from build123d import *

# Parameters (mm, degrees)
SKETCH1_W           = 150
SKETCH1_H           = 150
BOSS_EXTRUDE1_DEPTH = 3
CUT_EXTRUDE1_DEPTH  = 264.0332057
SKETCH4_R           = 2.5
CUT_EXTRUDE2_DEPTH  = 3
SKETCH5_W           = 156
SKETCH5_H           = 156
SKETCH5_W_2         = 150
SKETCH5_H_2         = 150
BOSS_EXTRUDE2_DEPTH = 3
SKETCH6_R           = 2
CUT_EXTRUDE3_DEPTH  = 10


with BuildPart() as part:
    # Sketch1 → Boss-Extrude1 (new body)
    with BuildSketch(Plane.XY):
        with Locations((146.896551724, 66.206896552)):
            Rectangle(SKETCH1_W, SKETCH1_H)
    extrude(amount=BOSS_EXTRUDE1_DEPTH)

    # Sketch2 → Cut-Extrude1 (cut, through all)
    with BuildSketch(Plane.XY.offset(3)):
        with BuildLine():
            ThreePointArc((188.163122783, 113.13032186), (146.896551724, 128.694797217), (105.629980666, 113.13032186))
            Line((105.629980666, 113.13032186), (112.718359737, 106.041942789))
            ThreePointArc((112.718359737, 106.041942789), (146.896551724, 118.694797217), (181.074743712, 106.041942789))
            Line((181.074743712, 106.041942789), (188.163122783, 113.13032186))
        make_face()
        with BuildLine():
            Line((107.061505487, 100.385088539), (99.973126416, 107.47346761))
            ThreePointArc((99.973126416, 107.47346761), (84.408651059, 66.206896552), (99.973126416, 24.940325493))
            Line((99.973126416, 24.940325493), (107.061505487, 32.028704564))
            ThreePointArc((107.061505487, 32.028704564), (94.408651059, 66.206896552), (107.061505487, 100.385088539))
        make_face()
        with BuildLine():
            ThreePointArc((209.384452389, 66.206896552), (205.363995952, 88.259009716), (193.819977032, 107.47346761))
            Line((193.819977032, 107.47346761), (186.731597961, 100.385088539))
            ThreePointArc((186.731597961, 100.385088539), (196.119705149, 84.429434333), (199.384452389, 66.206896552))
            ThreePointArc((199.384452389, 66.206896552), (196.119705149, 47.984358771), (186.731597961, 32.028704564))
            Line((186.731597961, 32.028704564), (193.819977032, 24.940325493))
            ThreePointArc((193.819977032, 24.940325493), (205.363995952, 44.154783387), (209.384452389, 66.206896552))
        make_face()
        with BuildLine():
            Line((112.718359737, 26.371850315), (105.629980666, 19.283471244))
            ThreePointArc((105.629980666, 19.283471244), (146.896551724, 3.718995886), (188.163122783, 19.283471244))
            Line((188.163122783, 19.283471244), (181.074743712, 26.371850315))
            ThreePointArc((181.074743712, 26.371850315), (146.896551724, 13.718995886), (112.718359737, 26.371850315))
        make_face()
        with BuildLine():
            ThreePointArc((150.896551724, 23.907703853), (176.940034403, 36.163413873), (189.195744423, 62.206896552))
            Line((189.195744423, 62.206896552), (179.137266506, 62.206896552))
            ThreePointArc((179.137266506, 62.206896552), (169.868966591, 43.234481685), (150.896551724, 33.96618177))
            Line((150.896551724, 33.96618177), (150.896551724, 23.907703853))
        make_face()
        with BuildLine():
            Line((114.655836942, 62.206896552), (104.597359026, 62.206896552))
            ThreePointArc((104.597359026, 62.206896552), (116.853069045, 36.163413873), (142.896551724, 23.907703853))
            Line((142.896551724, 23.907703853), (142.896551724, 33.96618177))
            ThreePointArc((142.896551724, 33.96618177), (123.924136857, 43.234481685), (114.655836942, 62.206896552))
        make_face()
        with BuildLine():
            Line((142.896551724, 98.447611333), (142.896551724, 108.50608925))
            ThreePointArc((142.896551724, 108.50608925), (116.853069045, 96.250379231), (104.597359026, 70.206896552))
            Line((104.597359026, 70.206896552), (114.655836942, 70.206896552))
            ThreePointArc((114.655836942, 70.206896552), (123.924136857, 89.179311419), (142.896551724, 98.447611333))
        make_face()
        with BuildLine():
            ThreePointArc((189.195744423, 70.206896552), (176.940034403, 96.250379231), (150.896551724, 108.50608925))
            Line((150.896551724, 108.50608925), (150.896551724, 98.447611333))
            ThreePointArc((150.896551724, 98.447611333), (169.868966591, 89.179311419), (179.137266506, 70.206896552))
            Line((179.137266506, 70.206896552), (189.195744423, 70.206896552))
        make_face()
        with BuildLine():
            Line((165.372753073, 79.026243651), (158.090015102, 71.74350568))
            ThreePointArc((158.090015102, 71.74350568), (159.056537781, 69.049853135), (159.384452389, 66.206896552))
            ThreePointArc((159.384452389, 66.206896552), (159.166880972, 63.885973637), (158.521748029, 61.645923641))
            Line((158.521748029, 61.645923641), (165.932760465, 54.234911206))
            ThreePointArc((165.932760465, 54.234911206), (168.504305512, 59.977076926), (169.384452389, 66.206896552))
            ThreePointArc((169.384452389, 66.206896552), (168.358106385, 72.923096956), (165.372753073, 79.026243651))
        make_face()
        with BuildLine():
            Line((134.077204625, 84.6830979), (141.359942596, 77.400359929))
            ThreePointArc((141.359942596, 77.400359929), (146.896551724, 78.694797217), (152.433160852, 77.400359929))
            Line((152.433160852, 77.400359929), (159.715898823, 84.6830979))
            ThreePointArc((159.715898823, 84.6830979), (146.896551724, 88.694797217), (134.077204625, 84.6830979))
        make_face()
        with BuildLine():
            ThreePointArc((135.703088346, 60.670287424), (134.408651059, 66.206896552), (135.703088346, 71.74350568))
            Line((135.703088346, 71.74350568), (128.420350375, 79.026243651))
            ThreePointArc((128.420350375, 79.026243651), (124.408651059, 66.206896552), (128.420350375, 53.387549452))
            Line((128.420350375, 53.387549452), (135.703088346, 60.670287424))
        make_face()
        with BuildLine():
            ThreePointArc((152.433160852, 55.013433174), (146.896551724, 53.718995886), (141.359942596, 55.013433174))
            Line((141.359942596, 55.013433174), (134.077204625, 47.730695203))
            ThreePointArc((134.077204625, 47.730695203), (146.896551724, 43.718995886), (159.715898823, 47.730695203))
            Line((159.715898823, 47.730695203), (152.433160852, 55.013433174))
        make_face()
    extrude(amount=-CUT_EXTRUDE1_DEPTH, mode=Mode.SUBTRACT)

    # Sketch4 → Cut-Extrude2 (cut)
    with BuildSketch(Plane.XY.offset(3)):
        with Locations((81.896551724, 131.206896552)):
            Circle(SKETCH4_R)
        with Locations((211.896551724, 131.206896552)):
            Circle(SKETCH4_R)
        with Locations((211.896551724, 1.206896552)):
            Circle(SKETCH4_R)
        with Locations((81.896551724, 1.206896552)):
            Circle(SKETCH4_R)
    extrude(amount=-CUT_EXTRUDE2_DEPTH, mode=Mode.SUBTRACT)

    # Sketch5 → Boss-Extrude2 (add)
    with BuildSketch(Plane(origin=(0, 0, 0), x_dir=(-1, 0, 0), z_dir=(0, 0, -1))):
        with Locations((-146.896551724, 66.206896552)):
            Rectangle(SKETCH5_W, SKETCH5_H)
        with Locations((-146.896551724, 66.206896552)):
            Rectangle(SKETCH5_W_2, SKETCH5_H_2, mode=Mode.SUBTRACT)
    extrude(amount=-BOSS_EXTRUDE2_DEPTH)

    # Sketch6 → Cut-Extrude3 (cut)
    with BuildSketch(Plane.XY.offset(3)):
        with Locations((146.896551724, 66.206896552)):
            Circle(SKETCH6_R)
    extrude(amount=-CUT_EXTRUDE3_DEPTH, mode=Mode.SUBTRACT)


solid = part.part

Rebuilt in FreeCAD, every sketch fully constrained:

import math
import FreeCAD as App
import Part
import Sketcher

V = App.Vector


def add_polygon(sketch, points):
    """Adds a closed chain of lines whose ends are joined by coincident constraints."""
    first, n = sketch.GeometryCount, len(points)
    for a, b in zip(points, points[1:] + points[:1]):
        sketch.addGeometry(Part.LineSegment(App.Vector(*a, 0), App.Vector(*b, 0)), False)
    for i in range(n):
        sketch.addConstraint(Sketcher.Constraint("Coincident", first + i, 2, first + (i + 1) % n, 1))

doc = App.newDocument("Part")
body = doc.addObject("PartDesign::Body", "Body")

# Sketch on XY plane
sketch1 = body.newObject("Sketcher::SketchObject", "Sketch")
sketch1.AttachmentSupport = (doc.getObject("XY_Plane"), [""])
sketch1.MapMode = "FlatFace"
add_polygon(sketch1, [(72, 141), (72, -9), (222, -9), (222, 141)])  # lines 0-3
sketch1.addConstraint([
    Sketcher.Constraint("Vertical", 0),
    Sketcher.Constraint("Horizontal", 1),
    Sketcher.Constraint("Vertical", 2),
    Sketcher.Constraint("Horizontal", 3),
    Sketcher.Constraint("Equal", 3, 0),
    Sketcher.Constraint("DistanceX", 1, 1, 1, 2, 150.0),
    Sketcher.Constraint("DistanceX", -1, 1, 0, 2, 71.896552),
    Sketcher.Constraint("DistanceY", 0, 2, -1, 1, 8.793103),
])
pad1 = body.newObject("PartDesign::Pad", "Pad")
pad1.Profile = sketch1
pad1.Length = 3

# Sketch on XY plane
sketch2 = body.newObject("Sketcher::SketchObject", "Sketch001")
sketch2.AttachmentSupport = (doc.getObject("XY_Plane"), [""])
sketch2.MapMode = "FlatFace"
sketch2.AttachmentOffset = App.Placement(V(0, 0, 3), App.Rotation())
sketch2.addGeometry([
    Part.ArcOfCircle(Part.Circle(V(146.896552, 66.206897, 0), V(0, 0, 1), 62.487901), math.radians(48.670149), math.radians(131.329851)),  # 0
    Part.LineSegment(V(105.629981, 113.130322, 0), V(112.71836, 106.041943, 0)),  # 1
    Part.ArcOfCircle(Part.Circle(V(146.896552, 66.206897, 0), V(0, 0, 1), 52.487901), math.radians(49.370637), math.radians(130.629363)),  # 2
    Part.LineSegment(V(181.074744, 106.041943, 0), V(188.163123, 113.130322, 0)),  # 3
    Part.LineSegment(V(107.061505, 100.385089, 0), V(99.973126, 107.473468, 0)),  # 4
    Part.ArcOfCircle(Part.Circle(V(146.896552, 66.206897, 0), V(0, 0, 1), 62.487901), math.radians(138.670149), math.radians(221.329851)),  # 5
    Part.LineSegment(V(99.973126, 24.940325, 0), V(107.061505, 32.028705, 0)),  # 6
    Part.ArcOfCircle(Part.Circle(V(146.896552, 66.206897, 0), V(0, 0, 1), 52.487901), math.radians(139.370637), math.radians(220.629363)),  # 7
    Part.ArcOfCircle(Part.Circle(V(146.896552, 66.206897, 0), V(0, 0, 1), 62.487901), math.radians(0), math.radians(41.329851)),  # 8
    Part.LineSegment(V(193.819977, 107.473468, 0), V(186.731598, 100.385089, 0)),  # 9
    Part.ArcOfCircle(Part.Circle(V(146.896552, 66.206897, 0), V(0, 0, 1), 52.487901), math.radians(0), math.radians(40.629363)),  # 10
    Part.ArcOfCircle(Part.Circle(V(146.896552, 66.206897, 0), V(0, 0, 1), 52.487901), math.radians(-40.629363), math.radians(0)),  # 11
    Part.LineSegment(V(186.731598, 32.028705, 0), V(193.819977, 24.940325, 0)),  # 12
    Part.ArcOfCircle(Part.Circle(V(146.896552, 66.206897, 0), V(0, 0, 1), 62.487901), math.radians(-41.329851), math.radians(0)),  # 13
    Part.LineSegment(V(112.71836, 26.37185, 0), V(105.629981, 19.283471, 0)),  # 14
    Part.ArcOfCircle(Part.Circle(V(146.896552, 66.206897, 0), V(0, 0, 1), 62.487901), math.radians(-131.329851), math.radians(-48.670149)),  # 15
    Part.LineSegment(V(188.163123, 19.283471, 0), V(181.074744, 26.37185, 0)),  # 16
    Part.ArcOfCircle(Part.Circle(V(146.896552, 66.206897, 0), V(0, 0, 1), 52.487901), math.radians(-130.629363), math.radians(-49.370637)),  # 17
    Part.ArcOfCircle(Part.Circle(V(146.896552, 66.206897, 0), V(0, 0, 1), 42.487901), math.radians(-84.59792), math.radians(-5.40208)),  # 18
    Part.LineSegment(V(189.195744, 62.206897, 0), V(179.137267, 62.206897, 0)),  # 19
    Part.ArcOfCircle(Part.Circle(V(146.896552, 66.206897, 0), V(0, 0, 1), 32.487901), math.radians(-82.92764), math.radians(-7.07236)),  # 20
    Part.LineSegment(V(150.896552, 33.966182, 0), V(150.896552, 23.907704, 0)),  # 21
    Part.LineSegment(V(114.655837, 62.206897, 0), V(104.597359, 62.206897, 0)),  # 22
    Part.ArcOfCircle(Part.Circle(V(146.896552, 66.206897, 0), V(0, 0, 1), 42.487901), math.radians(-174.59792), math.radians(-95.40208)),  # 23
    Part.LineSegment(V(142.896552, 23.907704, 0), V(142.896552, 33.966182, 0)),  # 24
    Part.ArcOfCircle(Part.Circle(V(146.896552, 66.206897, 0), V(0, 0, 1), 32.487901), math.radians(-172.92764), math.radians(-97.07236)),  # 25
    Part.LineSegment(V(142.896552, 98.447611, 0), V(142.896552, 108.506089, 0)),  # 26
    Part.ArcOfCircle(Part.Circle(V(146.896552, 66.206897, 0), V(0, 0, 1), 42.487901), math.radians(95.40208), math.radians(174.59792)),  # 27
    Part.LineSegment(V(104.597359, 70.206897, 0), V(114.655837, 70.206897, 0)),  # 28
    Part.ArcOfCircle(Part.Circle(V(146.896552, 66.206897, 0), V(0, 0, 1), 32.487901), math.radians(97.07236), math.radians(172.92764)),  # 29
    Part.ArcOfCircle(Part.Circle(V(146.896552, 66.206897, 0), V(0, 0, 1), 42.487901), math.radians(5.40208), math.radians(84.59792)),  # 30
    Part.LineSegment(V(150.896552, 108.506089, 0), V(150.896552, 98.447611, 0)),  # 31
    Part.ArcOfCircle(Part.Circle(V(146.896552, 66.206897, 0), V(0, 0, 1), 32.487901), math.radians(7.07236), math.radians(82.92764)),  # 32
    Part.LineSegment(V(179.137267, 70.206897, 0), V(189.195744, 70.206897, 0)),  # 33
    Part.LineSegment(V(165.372753, 79.026244, 0), V(158.090015, 71.743506, 0)),  # 34
    Part.ArcOfCircle(Part.Circle(V(146.896552, 66.206897, 0), V(0, 0, 1), 12.487901), math.radians(0), math.radians(26.318324)),  # 35
    Part.ArcOfCircle(Part.Circle(V(146.896552, 66.206897, 0), V(0, 0, 1), 12.487901), math.radians(-21.421822), math.radians(0)),  # 36
    Part.LineSegment(V(158.521748, 61.645924, 0), V(165.93276, 54.234911, 0)),  # 37
    Part.ArcOfCircle(Part.Circle(V(146.896552, 66.206897, 0), V(0, 0, 1), 22.487901), math.radians(-32.166032), math.radians(0)),  # 38
    Part.ArcOfCircle(Part.Circle(V(146.896552, 66.206897, 0), V(0, 0, 1), 22.487901), math.radians(0), math.radians(34.754083)),  # 39
    Part.LineSegment(V(134.077205, 84.683098, 0), V(141.359943, 77.40036, 0)),  # 40
    Part.ArcOfCircle(Part.Circle(V(146.896552, 66.206897, 0), V(0, 0, 1), 12.487901), math.radians(63.681676), math.radians(116.318324)),  # 41
    Part.LineSegment(V(152.433161, 77.40036, 0), V(159.715899, 84.683098, 0)),  # 42
    Part.ArcOfCircle(Part.Circle(V(146.896552, 66.206897, 0), V(0, 0, 1), 22.487901), math.radians(55.245917), math.radians(124.754083)),  # 43
    Part.ArcOfCircle(Part.Circle(V(146.896552, 66.206897, 0), V(0, 0, 1), 12.487901), math.radians(153.681676), math.radians(206.318324)),  # 44
    Part.LineSegment(V(135.703088, 71.743506, 0), V(128.42035, 79.026244, 0)),  # 45
    Part.ArcOfCircle(Part.Circle(V(146.896552, 66.206897, 0), V(0, 0, 1), 22.487901), math.radians(145.245917), math.radians(214.754083)),  # 46
    Part.LineSegment(V(128.42035, 53.387549, 0), V(135.703088, 60.670287, 0)),  # 47
    Part.ArcOfCircle(Part.Circle(V(146.896552, 66.206897, 0), V(0, 0, 1), 12.487901), math.radians(-116.318324), math.radians(-63.681676)),  # 48
    Part.LineSegment(V(141.359943, 55.013433, 0), V(134.077205, 47.730695, 0)),  # 49
    Part.ArcOfCircle(Part.Circle(V(146.896552, 66.206897, 0), V(0, 0, 1), 22.487901), math.radians(-124.754083), math.radians(-55.245917)),  # 50
    Part.LineSegment(V(159.715899, 47.730695, 0), V(152.433161, 55.013433, 0)),  # 51
], False)
sketch2.addConstraint([
    Sketcher.Constraint("Coincident", 0, 2, 1, 1),
    Sketcher.Constraint("Coincident", 1, 2, 2, 2),
    Sketcher.Constraint("Coincident", 2, 1, 3, 1),
    Sketcher.Constraint("Coincident", 3, 2, 0, 1),
    Sketcher.Constraint("Coincident", 4, 2, 5, 1),
    Sketcher.Constraint("Coincident", 5, 2, 6, 1),
    Sketcher.Constraint("Coincident", 6, 2, 7, 2),
    Sketcher.Constraint("Coincident", 7, 1, 4, 1),
    Sketcher.Constraint("Coincident", 8, 2, 9, 1),
    Sketcher.Constraint("Coincident", 9, 2, 10, 2),
    Sketcher.Constraint("Coincident", 10, 1, 11, 2),
    Sketcher.Constraint("Coincident", 11, 1, 12, 1),
    Sketcher.Constraint("Coincident", 12, 2, 13, 1),
    Sketcher.Constraint("Coincident", 13, 2, 8, 1),
    Sketcher.Constraint("Coincident", 14, 2, 15, 1),
    Sketcher.Constraint("Coincident", 15, 2, 16, 1),
    Sketcher.Constraint("Coincident", 16, 2, 17, 2),
    Sketcher.Constraint("Coincident", 17, 1, 14, 1),
    Sketcher.Constraint("Coincident", 18, 2, 19, 1),
    Sketcher.Constraint("Coincident", 19, 2, 20, 2),
    Sketcher.Constraint("Coincident", 20, 1, 21, 1),
    Sketcher.Constraint("Coincident", 21, 2, 18, 1),
    Sketcher.Constraint("Coincident", 22, 2, 23, 1),
    Sketcher.Constraint("Coincident", 23, 2, 24, 1),
    Sketcher.Constraint("Coincident", 24, 2, 25, 2),
    Sketcher.Constraint("Coincident", 25, 1, 22, 1),
    Sketcher.Constraint("Coincident", 26, 2, 27, 1),
    Sketcher.Constraint("Coincident", 27, 2, 28, 1),
    Sketcher.Constraint("Coincident", 28, 2, 29, 2),
    Sketcher.Constraint("Coincident", 29, 1, 26, 1),
    Sketcher.Constraint("Coincident", 30, 2, 31, 1),
    Sketcher.Constraint("Coincident", 31, 2, 32, 2),
    Sketcher.Constraint("Coincident", 32, 1, 33, 1),
    Sketcher.Constraint("Coincident", 33, 2, 30, 1),
    Sketcher.Constraint("Coincident", 34, 2, 35, 2),
    Sketcher.Constraint("Coincident", 35, 1, 36, 2),
    Sketcher.Constraint("Coincident", 36, 1, 37, 1),
    Sketcher.Constraint("Coincident", 37, 2, 38, 1),
    Sketcher.Constraint("Coincident", 38, 2, 39, 1),
    Sketcher.Constraint("Coincident", 39, 2, 34, 1),
    Sketcher.Constraint("Coincident", 40, 2, 41, 2),
    Sketcher.Constraint("Coincident", 41, 1, 42, 1),
    Sketcher.Constraint("Coincident", 42, 2, 43, 1),
    Sketcher.Constraint("Coincident", 43, 2, 40, 1),
    Sketcher.Constraint("Coincident", 44, 1, 45, 1),
    Sketcher.Constraint("Coincident", 45, 2, 46, 1),
    Sketcher.Constraint("Coincident", 46, 2, 47, 1),
    Sketcher.Constraint("Coincident", 47, 2, 44, 2),
    Sketcher.Constraint("Coincident", 48, 1, 49, 1),
    Sketcher.Constraint("Coincident", 49, 2, 50, 1),
    Sketcher.Constraint("Coincident", 50, 2, 51, 1),
    Sketcher.Constraint("Coincident", 51, 2, 48, 2),
    Sketcher.Constraint("Horizontal", 19),
    Sketcher.Constraint("Vertical", 21),
    Sketcher.Constraint("Horizontal", 22),
    Sketcher.Constraint("Vertical", 24),
    Sketcher.Constraint("Vertical", 26),
    Sketcher.Constraint("Horizontal", 28),
    Sketcher.Constraint("Vertical", 31),
    Sketcher.Constraint("Horizontal", 33),
    Sketcher.Constraint("Coincident", 2, 3, 0, 3),
    Sketcher.Constraint("Coincident", 5, 3, 0, 3),
    Sketcher.Constraint("Coincident", 7, 3, 0, 3),
    Sketcher.Constraint("Coincident", 8, 3, 0, 3),
    Sketcher.Constraint("Coincident", 10, 3, 0, 3),
    Sketcher.Constraint("Coincident", 11, 3, 0, 3),
    Sketcher.Constraint("Coincident", 13, 3, 0, 3),
    Sketcher.Constraint("Coincident", 15, 3, 0, 3),
    Sketcher.Constraint("Coincident", 17, 3, 0, 3),
    Sketcher.Constraint("Coincident", 18, 3, 0, 3),
    Sketcher.Constraint("Coincident", 20, 3, 0, 3),
    Sketcher.Constraint("Coincident", 23, 3, 0, 3),
    Sketcher.Constraint("Coincident", 25, 3, 0, 3),
    Sketcher.Constraint("Coincident", 27, 3, 0, 3),
    Sketcher.Constraint("Coincident", 29, 3, 0, 3),
    Sketcher.Constraint("Coincident", 30, 3, 0, 3),
    Sketcher.Constraint("Coincident", 32, 3, 0, 3),
    Sketcher.Constraint("Coincident", 35, 3, 0, 3),
    Sketcher.Constraint("Coincident", 36, 3, 0, 3),
    Sketcher.Constraint("Coincident", 38, 3, 0, 3),
    Sketcher.Constraint("Coincident", 39, 3, 0, 3),
    Sketcher.Constraint("Coincident", 41, 3, 0, 3),
    Sketcher.Constraint("Coincident", 43, 3, 0, 3),
    Sketcher.Constraint("Coincident", 44, 3, 0, 3),
    Sketcher.Constraint("Coincident", 46, 3, 0, 3),
    Sketcher.Constraint("Coincident", 48, 3, 0, 3),
    Sketcher.Constraint("Coincident", 50, 3, 0, 3),
    Sketcher.Constraint("Radius", 0, 62.487901),
    Sketcher.Constraint("Radius", 2, 52.487901),
    Sketcher.Constraint("Radius", 5, 62.487901),
    Sketcher.Constraint("Radius", 7, 52.487901),
    Sketcher.Constraint("Radius", 8, 62.487901),
    Sketcher.Constraint("Radius", 10, 52.487901),
    Sketcher.Constraint("Radius", 15, 62.487901),
    Sketcher.Constraint("Radius", 17, 52.487901),
    Sketcher.Constraint("Radius", 18, 42.487901),
    Sketcher.Constraint("Radius", 20, 32.487901),
    Sketcher.Constraint("Radius", 23, 42.487901),
    Sketcher.Constraint("Radius", 25, 32.487901),
    Sketcher.Constraint("Radius", 27, 42.487901),
    Sketcher.Constraint("Radius", 29, 32.487901),
    Sketcher.Constraint("Radius", 30, 42.487901),
    Sketcher.Constraint("Radius", 32, 32.487901),
    Sketcher.Constraint("Radius", 35, 12.487901),
    Sketcher.Constraint("Radius", 38, 22.487901),
    Sketcher.Constraint("Radius", 41, 12.487901),
    Sketcher.Constraint("Radius", 43, 22.487901),
    Sketcher.Constraint("Radius", 44, 12.487901),
    Sketcher.Constraint("Radius", 46, 22.487901),
    Sketcher.Constraint("Radius", 48, 12.487901),
    Sketcher.Constraint("Radius", 50, 22.487901),
    Sketcher.Constraint("DistanceX", -1, 1, 42, 2, 159.715899),
    Sketcher.Constraint("DistanceX", -1, 1, 50, 2, 159.715899),
    Sketcher.Constraint("Distance", 1, 10.024482),
    Sketcher.Constraint("Distance", 3, 10.024482),
    Sketcher.Constraint("Distance", 4, 10.024482),
    Sketcher.Constraint("Distance", 6, 10.024482),
    Sketcher.Constraint("Distance", 9, 10.024482),
    Sketcher.Constraint("Distance", 12, 10.024482),
    Sketcher.Constraint("Distance", 14, 10.024482),
    Sketcher.Constraint("Distance", 16, 10.024482),
    Sketcher.Constraint("DistanceX", 19, 2, 19, 1, 10.058478),
    Sketcher.Constraint("DistanceX", 22, 2, 22, 1, 10.058478),
    Sketcher.Constraint("DistanceX", 28, 1, 28, 2, 10.058478),
    Sketcher.Constraint("DistanceX", 33, 1, 33, 2, 10.058478),
    Sketcher.Constraint("DistanceY", 21, 2, 21, 1, 10.058478),
    Sketcher.Constraint("DistanceY", 24, 1, 24, 2, 10.058478),
    Sketcher.Constraint("DistanceY", 26, 1, 26, 2, 10.058478),
    Sketcher.Constraint("DistanceY", 31, 2, 31, 1, 10.058478),
    Sketcher.Constraint("DistanceX", -1, 1, 0, 3, 146.896552),
    Sketcher.Constraint("DistanceX", -1, 1, 0, 2, 105.629981),
    Sketcher.Constraint("DistanceY", -1, 1, 0, 2, 113.130322),
    Sketcher.Constraint("DistanceY", -1, 1, 3, 2, 113.130322),
    Sketcher.Constraint("DistanceY", -1, 1, 7, 1, 100.385089),
    Sketcher.Constraint("DistanceY", -1, 1, 9, 2, 100.385089),
    Sketcher.Constraint("DistanceX", -1, 1, 14, 2, 105.629981),
    Sketcher.Constraint("DistanceY", -1, 1, 15, 2, 19.283471),
    Sketcher.Constraint("DistanceX", -1, 1, 36, 1, 158.521748),
    Sketcher.Constraint("DistanceX", -1, 1, 37, 2, 165.93276),
    Sketcher.Constraint("DistanceY", -1, 1, 40, 2, 77.40036),
    Sketcher.Constraint("DistanceX", -1, 1, 41, 1, 152.433161),
    Sketcher.Constraint("DistanceX", -1, 1, 44, 1, 135.703088),
    Sketcher.Constraint("DistanceX", -1, 1, 45, 2, 128.42035),
    Sketcher.Constraint("DistanceX", -1, 1, 46, 2, 128.42035),
    Sketcher.Constraint("DistanceX", -1, 1, 47, 2, 135.703088),
    Sketcher.Constraint("DistanceX", -1, 1, 51, 2, 152.433161),
    Sketcher.Constraint("Distance", 34, 10.299347),
    Sketcher.Constraint("Distance", 40, 10.299347),
    Sketcher.Constraint("Distance", 49, 10.299347),
    Sketcher.Constraint("DistanceX", -1, 1, 5, 2, 99.973126),
    Sketcher.Constraint("DistanceY", -1, 1, 10, 1, 66.206897),
    Sketcher.Constraint("DistanceX", -1, 1, 11, 1, 186.731598),
    Sketcher.Constraint("DistanceY", -1, 1, 13, 2, 66.206897),
    Sketcher.Constraint("DistanceX", -1, 1, 34, 2, 158.090015),
    Sketcher.Constraint("DistanceY", -1, 1, 35, 1, 66.206897),
    Sketcher.Constraint("DistanceY", -1, 1, 38, 2, 66.206897),
    Sketcher.Constraint("DistanceX", -1, 1, 48, 1, 141.359943),
])
pocket1 = body.newObject("PartDesign::Pocket", "Pocket")
pocket1.Profile = sketch2
pocket1.Type = "ThroughAll"

# Sketch on XY plane
sketch3 = body.newObject("Sketcher::SketchObject", "Sketch002")
sketch3.AttachmentSupport = (doc.getObject("XY_Plane"), [""])
sketch3.MapMode = "FlatFace"
sketch3.AttachmentOffset = App.Placement(V(0, 0, 3), App.Rotation())
sketch3.addGeometry([
    Part.Circle(V(81.9, 131.2, 0), V(0, 0, 1), 2.5),
    Part.Circle(V(211.9, 131.2, 0), V(0, 0, 1), 2.5),
    Part.Circle(V(211.9, 1.2, 0), V(0, 0, 1), 2.5),
    Part.Circle(V(81.9, 1.2, 0), V(0, 0, 1), 2.5),
], False)
sketch3.addConstraint([
    Sketcher.Constraint("Equal", 0, 1),
    Sketcher.Constraint("Equal", 1, 2),
    Sketcher.Constraint("Equal", 2, 3),
    Sketcher.Constraint("Horizontal", 0, 3, 1, 3),
    Sketcher.Constraint("Horizontal", 2, 3, 3, 3),
    Sketcher.Constraint("Vertical", 1, 3, 2, 3),
    Sketcher.Constraint("Vertical", 0, 3, 3, 3),
    Sketcher.Constraint("Diameter", 0, 5.0),
    Sketcher.Constraint("DistanceX", 0, 3, 1, 3, 130.0),
    Sketcher.Constraint("DistanceY", 2, 3, 1, 3, 130.0),
    Sketcher.Constraint("DistanceX", -1, 1, 0, 3, 81.896552),
    Sketcher.Constraint("DistanceY", -1, 1, 0, 3, 131.206897),
])
pocket2 = body.newObject("PartDesign::Pocket", "Pocket001")
pocket2.Profile = sketch3
pocket2.Length = 3

# Sketch on XY plane
sketch4 = body.newObject("Sketcher::SketchObject", "Sketch003")
sketch4.AttachmentSupport = (doc.getObject("XY_Plane"), [""])
sketch4.MapMode = "FlatFace"
add_polygon(sketch4, [(225, 144), (225, -12), (69, -12), (69, 144)])  # lines 0-3
add_polygon(sketch4, [(72, -9), (222, -9), (222, 141), (72, 141)])  # lines 4-7
sketch4.addConstraint([
    Sketcher.Constraint("Vertical", 0),
    Sketcher.Constraint("Horizontal", 1),
    Sketcher.Constraint("Vertical", 2),
    Sketcher.Constraint("Horizontal", 3),
    Sketcher.Constraint("Horizontal", 4),
    Sketcher.Constraint("Vertical", 5),
    Sketcher.Constraint("Horizontal", 6),
    Sketcher.Constraint("Vertical", 7),
    Sketcher.Constraint("Equal", 3, 0),
    Sketcher.Constraint("Equal", 6, 5),
    Sketcher.Constraint("DistanceX", 1, 2, 1, 1, 156.0),
    Sketcher.Constraint("DistanceX", 4, 1, 4, 2, 150.0),
    Sketcher.Constraint("DistanceX", 4, 2, 0, 2, 3.0),
    Sketcher.Constraint("DistanceY", 0, 2, 4, 2, 3.0),
    Sketcher.Constraint("DistanceX", -1, 1, 0, 2, 224.896552),
    Sketcher.Constraint("DistanceY", 0, 2, -1, 1, 11.793103),
])
pad2 = body.newObject("PartDesign::Pad", "Pad001")
pad2.Profile = sketch4
pad2.Length = 3

# Sketch on XY plane
sketch5 = body.newObject("Sketcher::SketchObject", "Sketch004")
sketch5.AttachmentSupport = (doc.getObject("XY_Plane"), [""])
sketch5.MapMode = "FlatFace"
sketch5.AttachmentOffset = App.Placement(V(0, 0, 3), App.Rotation())
sketch5.addGeometry(Part.Circle(V(146.9, 66.2, 0), V(0, 0, 1), 2), False)
sketch5.addConstraint([
    Sketcher.Constraint("Diameter", 0, 4.0),
    Sketcher.Constraint("DistanceX", -1, 1, 0, 3, 146.896552),
    Sketcher.Constraint("DistanceY", -1, 1, 0, 3, 66.206897),
])
pocket3 = body.newObject("PartDesign::Pocket", "Pocket002")
pocket3.Profile = sketch5
pocket3.Length = 10

doc.recompute()
